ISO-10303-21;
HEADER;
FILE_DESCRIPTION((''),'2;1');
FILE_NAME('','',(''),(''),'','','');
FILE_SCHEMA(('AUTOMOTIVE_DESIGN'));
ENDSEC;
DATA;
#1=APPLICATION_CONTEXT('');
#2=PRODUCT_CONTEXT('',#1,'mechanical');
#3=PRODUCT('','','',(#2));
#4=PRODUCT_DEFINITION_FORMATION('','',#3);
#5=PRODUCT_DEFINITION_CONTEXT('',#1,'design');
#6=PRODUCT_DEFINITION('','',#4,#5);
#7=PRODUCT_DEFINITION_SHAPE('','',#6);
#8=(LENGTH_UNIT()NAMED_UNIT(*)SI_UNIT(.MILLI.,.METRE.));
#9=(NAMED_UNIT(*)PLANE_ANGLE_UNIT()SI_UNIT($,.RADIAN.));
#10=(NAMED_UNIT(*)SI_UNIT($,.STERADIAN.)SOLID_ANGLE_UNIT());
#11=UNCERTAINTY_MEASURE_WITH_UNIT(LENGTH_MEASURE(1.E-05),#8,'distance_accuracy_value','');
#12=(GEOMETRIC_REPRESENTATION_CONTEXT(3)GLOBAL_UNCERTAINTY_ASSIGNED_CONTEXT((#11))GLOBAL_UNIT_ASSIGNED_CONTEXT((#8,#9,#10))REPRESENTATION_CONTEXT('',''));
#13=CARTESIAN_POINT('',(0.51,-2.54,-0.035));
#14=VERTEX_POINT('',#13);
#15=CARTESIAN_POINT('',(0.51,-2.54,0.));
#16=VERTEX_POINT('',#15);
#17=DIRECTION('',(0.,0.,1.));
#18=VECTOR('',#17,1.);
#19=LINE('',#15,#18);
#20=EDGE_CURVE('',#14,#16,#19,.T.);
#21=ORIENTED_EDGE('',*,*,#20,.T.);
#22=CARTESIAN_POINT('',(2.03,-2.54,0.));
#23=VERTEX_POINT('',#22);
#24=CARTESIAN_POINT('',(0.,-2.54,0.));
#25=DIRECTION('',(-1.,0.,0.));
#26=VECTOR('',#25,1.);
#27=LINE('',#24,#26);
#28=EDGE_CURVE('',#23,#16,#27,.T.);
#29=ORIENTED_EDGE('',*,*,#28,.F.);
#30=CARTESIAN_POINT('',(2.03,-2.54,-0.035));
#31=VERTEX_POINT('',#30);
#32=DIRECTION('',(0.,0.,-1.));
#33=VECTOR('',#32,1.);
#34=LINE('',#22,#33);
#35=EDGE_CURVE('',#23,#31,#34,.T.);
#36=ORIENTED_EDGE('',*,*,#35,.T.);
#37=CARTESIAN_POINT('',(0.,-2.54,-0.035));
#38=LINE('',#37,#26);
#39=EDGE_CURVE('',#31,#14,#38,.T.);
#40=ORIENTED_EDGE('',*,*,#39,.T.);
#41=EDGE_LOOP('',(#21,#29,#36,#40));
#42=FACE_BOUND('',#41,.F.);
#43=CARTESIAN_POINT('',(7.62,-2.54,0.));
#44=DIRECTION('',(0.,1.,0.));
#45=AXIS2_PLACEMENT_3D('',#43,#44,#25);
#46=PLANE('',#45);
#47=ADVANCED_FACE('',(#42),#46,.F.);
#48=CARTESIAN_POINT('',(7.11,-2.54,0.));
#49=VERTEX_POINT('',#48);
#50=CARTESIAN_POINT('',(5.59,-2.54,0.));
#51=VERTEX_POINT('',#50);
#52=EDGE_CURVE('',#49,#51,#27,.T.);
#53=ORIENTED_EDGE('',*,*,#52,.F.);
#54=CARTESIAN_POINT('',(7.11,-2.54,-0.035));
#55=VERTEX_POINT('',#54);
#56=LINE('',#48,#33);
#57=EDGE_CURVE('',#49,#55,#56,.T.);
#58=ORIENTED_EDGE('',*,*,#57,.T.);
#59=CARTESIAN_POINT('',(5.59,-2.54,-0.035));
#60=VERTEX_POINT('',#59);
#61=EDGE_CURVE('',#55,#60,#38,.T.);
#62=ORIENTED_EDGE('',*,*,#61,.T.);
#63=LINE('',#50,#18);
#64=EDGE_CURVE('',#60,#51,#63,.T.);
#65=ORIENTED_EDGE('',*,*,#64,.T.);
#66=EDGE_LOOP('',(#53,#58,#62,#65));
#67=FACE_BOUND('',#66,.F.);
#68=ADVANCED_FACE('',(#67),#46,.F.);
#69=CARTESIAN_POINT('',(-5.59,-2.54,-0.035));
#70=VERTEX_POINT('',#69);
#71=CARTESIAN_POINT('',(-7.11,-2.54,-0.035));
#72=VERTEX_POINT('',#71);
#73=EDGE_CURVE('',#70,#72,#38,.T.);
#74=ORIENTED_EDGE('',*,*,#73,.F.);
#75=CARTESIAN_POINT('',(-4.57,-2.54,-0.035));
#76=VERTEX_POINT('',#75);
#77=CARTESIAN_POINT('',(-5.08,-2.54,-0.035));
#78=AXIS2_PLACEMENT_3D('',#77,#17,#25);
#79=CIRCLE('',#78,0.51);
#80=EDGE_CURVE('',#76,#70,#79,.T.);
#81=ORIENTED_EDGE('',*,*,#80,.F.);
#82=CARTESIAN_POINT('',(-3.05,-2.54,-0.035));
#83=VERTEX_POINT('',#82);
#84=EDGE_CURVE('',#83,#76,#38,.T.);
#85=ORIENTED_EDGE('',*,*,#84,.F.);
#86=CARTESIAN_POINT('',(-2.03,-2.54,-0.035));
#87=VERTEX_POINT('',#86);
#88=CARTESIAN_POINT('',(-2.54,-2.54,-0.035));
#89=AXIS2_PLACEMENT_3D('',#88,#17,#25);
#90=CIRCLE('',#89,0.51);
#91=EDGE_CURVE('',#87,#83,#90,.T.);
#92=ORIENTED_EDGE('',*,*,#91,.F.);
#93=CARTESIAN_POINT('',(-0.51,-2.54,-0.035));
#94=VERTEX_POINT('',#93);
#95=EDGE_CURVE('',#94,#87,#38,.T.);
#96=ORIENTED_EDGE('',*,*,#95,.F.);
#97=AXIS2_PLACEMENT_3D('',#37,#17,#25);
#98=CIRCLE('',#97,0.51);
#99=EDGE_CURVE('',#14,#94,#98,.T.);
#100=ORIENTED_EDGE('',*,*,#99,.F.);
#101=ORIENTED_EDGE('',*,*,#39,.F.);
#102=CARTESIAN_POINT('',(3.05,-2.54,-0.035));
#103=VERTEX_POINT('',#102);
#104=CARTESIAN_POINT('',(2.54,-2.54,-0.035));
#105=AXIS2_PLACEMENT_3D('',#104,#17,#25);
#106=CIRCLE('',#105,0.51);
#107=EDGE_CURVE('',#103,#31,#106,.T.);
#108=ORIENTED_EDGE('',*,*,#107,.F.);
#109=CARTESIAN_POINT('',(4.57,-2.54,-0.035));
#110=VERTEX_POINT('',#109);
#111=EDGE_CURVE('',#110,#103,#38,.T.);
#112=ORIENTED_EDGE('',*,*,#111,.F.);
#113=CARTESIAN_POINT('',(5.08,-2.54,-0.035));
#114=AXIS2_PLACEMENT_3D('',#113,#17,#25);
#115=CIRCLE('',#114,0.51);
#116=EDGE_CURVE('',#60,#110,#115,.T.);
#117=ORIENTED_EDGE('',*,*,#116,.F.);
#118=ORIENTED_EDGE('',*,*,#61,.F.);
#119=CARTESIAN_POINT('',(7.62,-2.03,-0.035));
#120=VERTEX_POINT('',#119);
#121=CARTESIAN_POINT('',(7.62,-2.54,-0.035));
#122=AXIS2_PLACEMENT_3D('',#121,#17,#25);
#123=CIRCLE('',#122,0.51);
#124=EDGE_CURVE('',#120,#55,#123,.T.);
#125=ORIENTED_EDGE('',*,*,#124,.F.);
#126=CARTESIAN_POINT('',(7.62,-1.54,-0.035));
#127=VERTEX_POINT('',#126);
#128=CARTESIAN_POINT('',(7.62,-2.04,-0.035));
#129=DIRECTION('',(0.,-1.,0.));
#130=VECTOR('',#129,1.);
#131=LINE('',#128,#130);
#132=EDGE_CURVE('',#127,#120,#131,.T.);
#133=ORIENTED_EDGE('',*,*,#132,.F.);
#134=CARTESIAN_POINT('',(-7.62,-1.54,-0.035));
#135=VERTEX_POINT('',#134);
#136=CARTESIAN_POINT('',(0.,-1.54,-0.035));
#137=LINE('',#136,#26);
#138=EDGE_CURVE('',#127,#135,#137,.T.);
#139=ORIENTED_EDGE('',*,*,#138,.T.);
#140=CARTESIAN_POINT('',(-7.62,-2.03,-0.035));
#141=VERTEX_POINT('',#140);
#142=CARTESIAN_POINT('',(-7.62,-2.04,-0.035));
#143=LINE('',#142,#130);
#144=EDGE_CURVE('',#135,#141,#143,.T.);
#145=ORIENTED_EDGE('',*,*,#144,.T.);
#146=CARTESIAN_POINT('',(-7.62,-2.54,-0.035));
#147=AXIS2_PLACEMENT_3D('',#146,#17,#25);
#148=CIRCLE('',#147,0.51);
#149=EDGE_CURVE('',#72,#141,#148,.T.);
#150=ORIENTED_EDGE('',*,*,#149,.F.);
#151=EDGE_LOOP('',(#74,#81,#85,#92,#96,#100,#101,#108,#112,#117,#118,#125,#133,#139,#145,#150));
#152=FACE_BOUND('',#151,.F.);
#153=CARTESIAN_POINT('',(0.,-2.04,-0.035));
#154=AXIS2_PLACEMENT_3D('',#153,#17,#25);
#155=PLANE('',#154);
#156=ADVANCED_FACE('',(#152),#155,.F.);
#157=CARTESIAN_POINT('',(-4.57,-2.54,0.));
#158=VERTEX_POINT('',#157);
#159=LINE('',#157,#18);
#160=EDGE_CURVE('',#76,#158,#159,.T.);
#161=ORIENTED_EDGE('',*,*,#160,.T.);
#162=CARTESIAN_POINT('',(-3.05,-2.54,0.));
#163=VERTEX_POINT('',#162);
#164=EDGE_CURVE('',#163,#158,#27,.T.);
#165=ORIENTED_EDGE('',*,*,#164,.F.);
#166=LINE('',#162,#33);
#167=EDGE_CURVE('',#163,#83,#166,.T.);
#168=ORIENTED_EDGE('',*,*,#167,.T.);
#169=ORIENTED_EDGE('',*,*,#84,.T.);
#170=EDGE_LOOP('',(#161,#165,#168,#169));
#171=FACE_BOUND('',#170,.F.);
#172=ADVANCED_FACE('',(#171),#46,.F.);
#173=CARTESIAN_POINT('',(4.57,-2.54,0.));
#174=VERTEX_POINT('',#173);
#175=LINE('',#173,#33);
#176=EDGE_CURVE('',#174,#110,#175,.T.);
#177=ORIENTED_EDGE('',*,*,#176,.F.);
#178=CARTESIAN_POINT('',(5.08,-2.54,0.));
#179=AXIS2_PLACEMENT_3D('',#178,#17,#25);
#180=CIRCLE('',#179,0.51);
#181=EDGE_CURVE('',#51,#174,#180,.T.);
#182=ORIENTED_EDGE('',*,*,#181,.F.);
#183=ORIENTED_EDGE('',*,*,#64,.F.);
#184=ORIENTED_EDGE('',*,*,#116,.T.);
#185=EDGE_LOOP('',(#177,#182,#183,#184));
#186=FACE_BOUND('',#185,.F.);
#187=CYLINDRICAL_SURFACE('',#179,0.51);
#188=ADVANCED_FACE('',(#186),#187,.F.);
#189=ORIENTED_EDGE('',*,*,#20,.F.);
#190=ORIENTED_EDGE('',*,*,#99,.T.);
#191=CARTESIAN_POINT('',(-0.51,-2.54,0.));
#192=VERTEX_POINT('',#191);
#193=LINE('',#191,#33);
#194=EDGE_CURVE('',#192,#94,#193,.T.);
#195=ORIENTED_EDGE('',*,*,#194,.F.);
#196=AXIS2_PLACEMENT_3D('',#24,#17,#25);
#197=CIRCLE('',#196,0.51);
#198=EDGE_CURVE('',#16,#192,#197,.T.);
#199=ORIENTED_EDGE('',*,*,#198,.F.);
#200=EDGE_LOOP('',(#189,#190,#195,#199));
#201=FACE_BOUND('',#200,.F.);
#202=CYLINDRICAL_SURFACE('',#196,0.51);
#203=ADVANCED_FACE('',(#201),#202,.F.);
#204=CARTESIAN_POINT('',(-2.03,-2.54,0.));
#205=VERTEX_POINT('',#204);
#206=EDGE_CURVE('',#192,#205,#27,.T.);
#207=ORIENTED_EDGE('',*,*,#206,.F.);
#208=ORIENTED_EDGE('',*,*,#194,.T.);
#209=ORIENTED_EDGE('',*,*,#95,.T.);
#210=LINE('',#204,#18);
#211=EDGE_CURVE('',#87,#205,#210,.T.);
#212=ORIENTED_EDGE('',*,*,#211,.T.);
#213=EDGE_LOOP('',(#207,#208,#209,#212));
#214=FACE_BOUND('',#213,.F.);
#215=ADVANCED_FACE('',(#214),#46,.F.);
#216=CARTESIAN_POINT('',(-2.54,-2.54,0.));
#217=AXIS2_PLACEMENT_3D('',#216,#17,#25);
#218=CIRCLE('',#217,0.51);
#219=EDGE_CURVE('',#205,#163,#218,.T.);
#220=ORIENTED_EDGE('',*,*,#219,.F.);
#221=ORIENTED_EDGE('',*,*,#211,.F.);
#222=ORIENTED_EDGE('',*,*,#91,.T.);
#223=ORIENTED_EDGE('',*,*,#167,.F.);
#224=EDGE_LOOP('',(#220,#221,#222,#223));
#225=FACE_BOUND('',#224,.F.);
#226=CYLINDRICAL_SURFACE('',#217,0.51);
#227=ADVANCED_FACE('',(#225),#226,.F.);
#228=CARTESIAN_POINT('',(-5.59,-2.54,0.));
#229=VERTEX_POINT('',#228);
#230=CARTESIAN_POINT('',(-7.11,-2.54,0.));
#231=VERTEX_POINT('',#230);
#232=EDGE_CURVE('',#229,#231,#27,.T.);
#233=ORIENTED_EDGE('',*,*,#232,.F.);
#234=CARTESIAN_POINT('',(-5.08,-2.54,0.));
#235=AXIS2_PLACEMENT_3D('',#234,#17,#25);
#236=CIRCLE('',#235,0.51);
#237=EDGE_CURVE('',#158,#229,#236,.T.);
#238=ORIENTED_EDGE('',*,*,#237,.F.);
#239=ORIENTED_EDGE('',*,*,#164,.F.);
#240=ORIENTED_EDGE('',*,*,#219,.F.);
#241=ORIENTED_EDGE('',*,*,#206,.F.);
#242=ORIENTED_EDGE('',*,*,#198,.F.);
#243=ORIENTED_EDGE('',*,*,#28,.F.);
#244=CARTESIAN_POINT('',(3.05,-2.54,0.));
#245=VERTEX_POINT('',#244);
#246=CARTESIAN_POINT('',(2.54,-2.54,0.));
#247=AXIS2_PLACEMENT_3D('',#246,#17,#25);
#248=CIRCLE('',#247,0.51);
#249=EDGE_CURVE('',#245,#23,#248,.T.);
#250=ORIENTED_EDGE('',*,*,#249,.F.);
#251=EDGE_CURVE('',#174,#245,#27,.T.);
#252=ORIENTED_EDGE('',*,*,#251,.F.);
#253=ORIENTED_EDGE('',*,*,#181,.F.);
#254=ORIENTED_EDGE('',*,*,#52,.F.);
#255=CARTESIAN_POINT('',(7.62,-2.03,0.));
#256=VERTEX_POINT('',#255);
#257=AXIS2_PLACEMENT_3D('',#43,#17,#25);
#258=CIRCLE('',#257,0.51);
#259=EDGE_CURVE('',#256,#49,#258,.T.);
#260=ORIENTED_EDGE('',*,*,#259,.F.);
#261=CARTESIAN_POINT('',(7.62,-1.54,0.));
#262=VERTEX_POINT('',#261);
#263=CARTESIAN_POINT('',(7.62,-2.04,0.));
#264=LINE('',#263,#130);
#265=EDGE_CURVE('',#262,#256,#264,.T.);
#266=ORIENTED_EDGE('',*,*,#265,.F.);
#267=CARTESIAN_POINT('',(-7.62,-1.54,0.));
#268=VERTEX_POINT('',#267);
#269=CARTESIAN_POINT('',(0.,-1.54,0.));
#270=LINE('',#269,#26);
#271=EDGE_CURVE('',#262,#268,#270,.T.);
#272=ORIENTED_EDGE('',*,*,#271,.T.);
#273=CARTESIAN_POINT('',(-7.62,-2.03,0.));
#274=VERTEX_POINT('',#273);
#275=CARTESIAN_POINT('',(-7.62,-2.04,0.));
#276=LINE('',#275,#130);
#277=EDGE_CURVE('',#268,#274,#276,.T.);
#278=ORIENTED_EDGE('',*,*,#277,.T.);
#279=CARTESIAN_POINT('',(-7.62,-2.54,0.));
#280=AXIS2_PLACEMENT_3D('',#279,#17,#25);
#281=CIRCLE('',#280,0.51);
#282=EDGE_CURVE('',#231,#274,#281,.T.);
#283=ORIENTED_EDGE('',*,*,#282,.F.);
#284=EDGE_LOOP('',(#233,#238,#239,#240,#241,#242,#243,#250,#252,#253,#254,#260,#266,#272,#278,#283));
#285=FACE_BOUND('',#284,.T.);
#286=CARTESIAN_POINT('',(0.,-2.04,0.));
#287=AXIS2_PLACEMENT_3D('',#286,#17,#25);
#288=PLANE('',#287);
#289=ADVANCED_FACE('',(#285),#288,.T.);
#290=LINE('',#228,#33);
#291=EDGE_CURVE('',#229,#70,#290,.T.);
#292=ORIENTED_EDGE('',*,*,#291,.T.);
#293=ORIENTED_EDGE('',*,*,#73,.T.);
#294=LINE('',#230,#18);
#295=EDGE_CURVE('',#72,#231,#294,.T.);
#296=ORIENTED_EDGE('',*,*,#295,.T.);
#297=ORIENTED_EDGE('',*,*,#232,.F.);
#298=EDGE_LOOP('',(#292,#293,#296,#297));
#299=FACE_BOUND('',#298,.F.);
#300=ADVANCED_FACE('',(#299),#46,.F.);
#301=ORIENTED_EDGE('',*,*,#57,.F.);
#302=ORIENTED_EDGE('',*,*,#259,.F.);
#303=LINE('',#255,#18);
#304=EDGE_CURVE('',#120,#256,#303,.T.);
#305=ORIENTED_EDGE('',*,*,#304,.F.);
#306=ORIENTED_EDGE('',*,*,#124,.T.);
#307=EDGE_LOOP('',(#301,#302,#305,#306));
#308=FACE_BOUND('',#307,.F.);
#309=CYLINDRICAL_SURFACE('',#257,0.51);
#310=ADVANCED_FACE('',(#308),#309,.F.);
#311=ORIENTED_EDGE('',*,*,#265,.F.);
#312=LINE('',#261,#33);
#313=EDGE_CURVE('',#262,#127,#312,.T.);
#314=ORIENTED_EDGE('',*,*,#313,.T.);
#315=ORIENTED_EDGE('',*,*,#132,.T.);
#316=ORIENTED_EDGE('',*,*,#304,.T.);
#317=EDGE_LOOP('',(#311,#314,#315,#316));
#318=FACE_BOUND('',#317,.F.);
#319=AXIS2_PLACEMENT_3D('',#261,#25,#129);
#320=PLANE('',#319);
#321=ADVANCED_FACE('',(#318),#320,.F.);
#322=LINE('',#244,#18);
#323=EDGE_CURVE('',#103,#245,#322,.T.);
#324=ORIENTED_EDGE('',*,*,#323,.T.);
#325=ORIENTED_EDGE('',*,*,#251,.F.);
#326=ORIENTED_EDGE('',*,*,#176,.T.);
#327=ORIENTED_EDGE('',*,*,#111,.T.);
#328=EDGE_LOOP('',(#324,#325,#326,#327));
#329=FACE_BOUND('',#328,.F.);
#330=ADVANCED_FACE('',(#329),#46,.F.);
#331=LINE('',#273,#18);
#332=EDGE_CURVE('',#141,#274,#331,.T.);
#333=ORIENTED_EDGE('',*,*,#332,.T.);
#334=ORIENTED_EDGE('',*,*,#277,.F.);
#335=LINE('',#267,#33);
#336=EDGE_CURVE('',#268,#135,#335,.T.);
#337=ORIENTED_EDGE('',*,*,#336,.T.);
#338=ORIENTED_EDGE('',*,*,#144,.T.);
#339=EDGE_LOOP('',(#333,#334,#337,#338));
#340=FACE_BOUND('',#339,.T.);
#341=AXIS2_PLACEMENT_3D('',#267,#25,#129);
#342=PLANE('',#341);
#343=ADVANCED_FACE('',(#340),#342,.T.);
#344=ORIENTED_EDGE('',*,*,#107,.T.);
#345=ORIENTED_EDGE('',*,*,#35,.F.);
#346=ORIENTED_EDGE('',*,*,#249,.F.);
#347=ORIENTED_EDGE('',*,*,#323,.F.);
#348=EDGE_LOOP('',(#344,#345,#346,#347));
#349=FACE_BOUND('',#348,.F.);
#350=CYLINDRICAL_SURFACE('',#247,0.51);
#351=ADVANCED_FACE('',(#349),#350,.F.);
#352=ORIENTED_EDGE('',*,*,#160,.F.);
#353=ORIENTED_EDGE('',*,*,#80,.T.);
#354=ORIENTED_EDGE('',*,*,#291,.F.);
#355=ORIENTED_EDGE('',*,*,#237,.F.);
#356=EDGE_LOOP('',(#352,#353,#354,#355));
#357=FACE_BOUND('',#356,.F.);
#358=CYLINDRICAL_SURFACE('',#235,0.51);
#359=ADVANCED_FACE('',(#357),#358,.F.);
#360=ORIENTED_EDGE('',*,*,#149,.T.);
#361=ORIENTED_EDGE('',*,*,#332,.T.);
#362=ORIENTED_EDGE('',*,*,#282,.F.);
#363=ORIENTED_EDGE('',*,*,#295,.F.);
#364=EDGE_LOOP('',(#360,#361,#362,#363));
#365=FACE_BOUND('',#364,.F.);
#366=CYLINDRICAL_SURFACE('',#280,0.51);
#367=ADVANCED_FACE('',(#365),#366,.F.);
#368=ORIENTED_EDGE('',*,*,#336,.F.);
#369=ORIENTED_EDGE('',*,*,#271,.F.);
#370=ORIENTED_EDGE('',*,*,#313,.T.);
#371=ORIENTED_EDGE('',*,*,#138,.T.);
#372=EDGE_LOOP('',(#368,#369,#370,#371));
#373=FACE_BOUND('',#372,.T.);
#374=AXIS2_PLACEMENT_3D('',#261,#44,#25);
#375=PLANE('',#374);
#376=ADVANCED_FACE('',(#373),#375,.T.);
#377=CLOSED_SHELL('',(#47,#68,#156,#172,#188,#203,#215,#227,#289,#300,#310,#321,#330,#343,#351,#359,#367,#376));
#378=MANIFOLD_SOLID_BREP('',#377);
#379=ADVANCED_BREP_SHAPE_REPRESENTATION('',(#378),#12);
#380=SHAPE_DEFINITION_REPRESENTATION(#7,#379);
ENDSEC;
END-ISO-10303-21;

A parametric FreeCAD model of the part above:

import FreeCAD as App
import Part
import Sketcher
Q = App.Units.Quantity


def add_polygon(sketch, points):
    """Adds a closed chain of lines whose ends are joined by coincident constraints."""
    first, n = sketch.GeometryCount, len(points)
    for a, b in zip(points, points[1:] + points[:1]):
        sketch.addGeometry(Part.LineSegment(App.Vector(*a, 0), App.Vector(*b, 0)), False)
    for i in range(n):
        sketch.addConstraint(Sketcher.Constraint("Coincident", first + i, 2, first + (i + 1) % n, 1))

doc = App.newDocument("Part")
body = doc.addObject("PartDesign::Body", "Body")

sketch1 = body.newObject("Sketcher::SketchObject", "Sketch")
sketch1.AttachmentSupport = (doc.getObject("XY_Plane"), [""])
sketch1.MapMode = "FlatFace"
add_polygon(sketch1, [(-7.6, 2.5), (-7.6, 1.5), (7.6, 1.5), (7.6, 2.5)])
sketch1.addConstraint(Sketcher.Constraint("Vertical", 0))
sketch1.addConstraint(Sketcher.Constraint("Horizontal", 1))
sketch1.addConstraint(Sketcher.Constraint("Vertical", 2))
sketch1.addConstraint(Sketcher.Constraint("Horizontal", 3))
sketch1.addConstraint(Sketcher.Constraint("DistanceY", 0, 2, 0, 1, Q("1 mm")))
sketch1.addConstraint(Sketcher.Constraint("DistanceX", 1, 1, 1, 2, Q("15.24 mm")))
sketch1.addConstraint(Sketcher.Constraint("DistanceX", 0, 2, -1, 1, Q("7.62 mm")))
sketch1.addConstraint(Sketcher.Constraint("DistanceY", -1, 1, 0, 2, Q("1.54 mm")))
pad1 = body.newObject("PartDesign::Pad", "Pad")
pad1.Profile = sketch1
pad1.Length = 0.035
pad1.Reversed = True

sketch2 = body.newObject("Sketcher::SketchObject", "Sketch001")
sketch2.AttachmentSupport = (doc.getObject("XY_Plane"), [""])
sketch2.MapMode = "FlatFace"
sketch2.addGeometry(Part.Circle(App.Vector(-7.6, 2.5, 0), App.Vector(0, 0, 1), 0.5), False)
sketch2.addConstraint(Sketcher.Constraint("Diameter", 0, Q("1.02 mm")))
sketch2.addConstraint(Sketcher.Constraint("DistanceX", 0, 3, -1, 1, Q("7.62 mm")))
sketch2.addConstraint(Sketcher.Constraint("DistanceY", -1, 1, 0, 3, Q("2.54 mm")))
pocket1 = body.newObject("PartDesign::Pocket", "Pocket")
pocket1.Profile = sketch2
pocket1.Type = "ThroughAll"
doc.recompute()

linearpattern = body.newObject("PartDesign::LinearPattern", "LinearPattern")
linearpattern.Originals = [pocket1]
linearpattern.Direction = (doc.getObject("X_Axis"), [""])
linearpattern.Mode = "offset"
linearpattern.Offset = 2.54
linearpattern.Occurrences = 7
body.Tip = linearpattern
body2 = doc.addObject("PartDesign::Body", "Body001")
doc.recompute()

body.Placement = App.Placement(App.Vector(0, 0, 0), App.Rotation(App.Vector(0, 0, 1), 180))
boolean = body2.newObject("PartDesign::Boolean", "Boolean")
boolean.Type = "Fuse"
boolean.addObjects([body])

doc.recompute()
